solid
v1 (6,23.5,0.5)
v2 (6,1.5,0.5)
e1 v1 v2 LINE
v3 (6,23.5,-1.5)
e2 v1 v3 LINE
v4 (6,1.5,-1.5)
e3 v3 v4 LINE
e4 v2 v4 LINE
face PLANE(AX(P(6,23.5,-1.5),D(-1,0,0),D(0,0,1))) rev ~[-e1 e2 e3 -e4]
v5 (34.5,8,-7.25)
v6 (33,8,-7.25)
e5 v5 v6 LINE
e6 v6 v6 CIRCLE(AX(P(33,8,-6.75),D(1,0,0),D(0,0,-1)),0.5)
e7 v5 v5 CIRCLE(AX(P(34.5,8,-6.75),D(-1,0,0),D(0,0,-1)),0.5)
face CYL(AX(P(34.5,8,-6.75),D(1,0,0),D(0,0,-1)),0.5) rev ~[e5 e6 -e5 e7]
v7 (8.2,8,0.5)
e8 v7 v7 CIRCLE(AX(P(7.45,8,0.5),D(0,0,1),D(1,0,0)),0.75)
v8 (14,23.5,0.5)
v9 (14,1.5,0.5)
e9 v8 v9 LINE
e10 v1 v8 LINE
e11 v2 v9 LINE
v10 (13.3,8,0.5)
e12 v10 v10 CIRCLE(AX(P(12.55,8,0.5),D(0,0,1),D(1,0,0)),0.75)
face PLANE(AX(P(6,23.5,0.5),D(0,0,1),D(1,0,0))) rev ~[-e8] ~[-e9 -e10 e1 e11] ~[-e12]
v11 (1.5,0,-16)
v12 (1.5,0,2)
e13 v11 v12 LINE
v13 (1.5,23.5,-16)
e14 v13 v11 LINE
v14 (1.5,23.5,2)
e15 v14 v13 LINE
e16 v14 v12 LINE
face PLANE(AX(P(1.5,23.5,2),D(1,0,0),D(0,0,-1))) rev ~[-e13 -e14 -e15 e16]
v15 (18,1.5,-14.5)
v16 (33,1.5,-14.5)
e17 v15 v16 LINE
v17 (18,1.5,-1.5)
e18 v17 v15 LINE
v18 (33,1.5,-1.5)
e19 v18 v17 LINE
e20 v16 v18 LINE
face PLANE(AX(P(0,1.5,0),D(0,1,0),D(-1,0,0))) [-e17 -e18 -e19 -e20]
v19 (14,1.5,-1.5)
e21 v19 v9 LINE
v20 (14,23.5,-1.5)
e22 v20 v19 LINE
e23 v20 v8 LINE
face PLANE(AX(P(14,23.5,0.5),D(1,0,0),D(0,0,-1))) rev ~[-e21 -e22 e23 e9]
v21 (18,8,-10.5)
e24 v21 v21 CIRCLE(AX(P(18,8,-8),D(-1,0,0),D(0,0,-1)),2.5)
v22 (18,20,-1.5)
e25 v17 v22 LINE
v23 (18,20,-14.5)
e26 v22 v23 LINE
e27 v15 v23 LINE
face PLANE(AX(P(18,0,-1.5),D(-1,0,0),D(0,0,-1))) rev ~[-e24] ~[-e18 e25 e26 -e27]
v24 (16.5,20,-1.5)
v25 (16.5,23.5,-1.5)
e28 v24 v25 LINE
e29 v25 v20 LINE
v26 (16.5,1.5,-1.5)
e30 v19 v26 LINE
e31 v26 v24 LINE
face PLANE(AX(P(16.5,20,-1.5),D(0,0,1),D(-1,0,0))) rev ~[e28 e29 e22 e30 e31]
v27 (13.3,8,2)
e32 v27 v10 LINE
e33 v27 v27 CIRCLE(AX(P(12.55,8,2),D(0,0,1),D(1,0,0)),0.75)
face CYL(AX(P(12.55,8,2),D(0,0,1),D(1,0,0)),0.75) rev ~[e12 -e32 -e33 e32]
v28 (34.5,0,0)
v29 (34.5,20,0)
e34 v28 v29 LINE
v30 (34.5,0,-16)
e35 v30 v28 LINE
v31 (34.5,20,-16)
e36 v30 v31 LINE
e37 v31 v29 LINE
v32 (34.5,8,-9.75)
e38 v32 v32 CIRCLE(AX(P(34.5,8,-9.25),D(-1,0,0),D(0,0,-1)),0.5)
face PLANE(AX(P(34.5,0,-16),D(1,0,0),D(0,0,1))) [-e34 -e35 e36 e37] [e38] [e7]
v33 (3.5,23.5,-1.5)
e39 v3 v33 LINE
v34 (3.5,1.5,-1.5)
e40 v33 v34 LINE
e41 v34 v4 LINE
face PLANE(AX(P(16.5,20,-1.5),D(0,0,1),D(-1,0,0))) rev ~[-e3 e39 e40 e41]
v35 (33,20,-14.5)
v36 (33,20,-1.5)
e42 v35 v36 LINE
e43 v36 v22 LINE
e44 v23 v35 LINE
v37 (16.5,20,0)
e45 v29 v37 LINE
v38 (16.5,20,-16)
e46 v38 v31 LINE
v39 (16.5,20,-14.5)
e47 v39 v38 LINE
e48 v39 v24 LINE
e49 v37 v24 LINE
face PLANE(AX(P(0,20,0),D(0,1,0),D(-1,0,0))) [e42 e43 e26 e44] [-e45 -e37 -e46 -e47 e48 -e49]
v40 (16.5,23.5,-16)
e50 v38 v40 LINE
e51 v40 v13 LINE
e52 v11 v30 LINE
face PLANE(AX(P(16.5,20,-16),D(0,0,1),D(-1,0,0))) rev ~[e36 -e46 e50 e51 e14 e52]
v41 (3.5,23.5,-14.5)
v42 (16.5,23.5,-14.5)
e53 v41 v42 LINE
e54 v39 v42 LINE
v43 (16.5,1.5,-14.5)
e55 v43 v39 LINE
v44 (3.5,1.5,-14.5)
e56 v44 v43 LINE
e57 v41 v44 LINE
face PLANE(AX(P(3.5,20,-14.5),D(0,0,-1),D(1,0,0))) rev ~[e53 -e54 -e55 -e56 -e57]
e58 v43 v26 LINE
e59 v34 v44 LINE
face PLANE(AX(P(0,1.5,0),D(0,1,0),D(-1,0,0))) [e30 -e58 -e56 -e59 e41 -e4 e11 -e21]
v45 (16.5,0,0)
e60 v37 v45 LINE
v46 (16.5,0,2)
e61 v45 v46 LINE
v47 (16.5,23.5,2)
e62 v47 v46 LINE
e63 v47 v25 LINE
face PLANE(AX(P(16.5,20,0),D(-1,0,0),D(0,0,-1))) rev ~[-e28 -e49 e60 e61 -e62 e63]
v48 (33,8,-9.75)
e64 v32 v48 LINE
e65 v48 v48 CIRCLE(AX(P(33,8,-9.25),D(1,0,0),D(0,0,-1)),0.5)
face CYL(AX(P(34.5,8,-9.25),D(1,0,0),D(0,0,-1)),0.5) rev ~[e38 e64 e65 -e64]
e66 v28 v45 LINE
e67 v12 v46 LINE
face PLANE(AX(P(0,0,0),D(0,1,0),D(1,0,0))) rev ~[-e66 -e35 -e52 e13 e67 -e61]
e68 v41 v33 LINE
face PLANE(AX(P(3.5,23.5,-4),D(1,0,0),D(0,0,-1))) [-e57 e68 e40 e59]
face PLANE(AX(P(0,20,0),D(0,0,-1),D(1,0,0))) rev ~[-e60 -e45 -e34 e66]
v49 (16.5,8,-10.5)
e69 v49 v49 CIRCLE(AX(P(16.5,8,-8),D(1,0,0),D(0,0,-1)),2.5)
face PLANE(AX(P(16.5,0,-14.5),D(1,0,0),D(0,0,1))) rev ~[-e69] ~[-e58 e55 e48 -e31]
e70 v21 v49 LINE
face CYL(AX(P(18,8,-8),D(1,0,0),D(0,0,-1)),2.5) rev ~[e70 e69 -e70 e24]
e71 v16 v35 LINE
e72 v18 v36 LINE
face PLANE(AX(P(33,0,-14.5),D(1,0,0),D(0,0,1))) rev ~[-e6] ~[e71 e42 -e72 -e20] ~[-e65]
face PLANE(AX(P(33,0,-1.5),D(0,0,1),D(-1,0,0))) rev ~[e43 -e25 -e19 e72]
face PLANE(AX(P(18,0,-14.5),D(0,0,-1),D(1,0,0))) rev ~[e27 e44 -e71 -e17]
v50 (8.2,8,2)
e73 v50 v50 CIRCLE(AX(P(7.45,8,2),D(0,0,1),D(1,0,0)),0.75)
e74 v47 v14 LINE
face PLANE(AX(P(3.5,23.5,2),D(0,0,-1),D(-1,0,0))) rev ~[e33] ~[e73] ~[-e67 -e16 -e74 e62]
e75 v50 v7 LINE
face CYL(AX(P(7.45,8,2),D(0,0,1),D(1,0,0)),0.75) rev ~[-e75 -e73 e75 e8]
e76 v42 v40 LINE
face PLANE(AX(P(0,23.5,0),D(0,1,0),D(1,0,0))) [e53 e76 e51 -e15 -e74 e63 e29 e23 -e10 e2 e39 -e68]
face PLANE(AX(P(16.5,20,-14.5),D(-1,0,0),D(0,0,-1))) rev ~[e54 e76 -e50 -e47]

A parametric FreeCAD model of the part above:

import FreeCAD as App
import Part
import Sketcher
from FreeCAD import Vector
Q = App.Units.Quantity

doc = App.newDocument("Part")
body = doc.addObject("PartDesign::Body", "Body")
body.AllowCompound = True

# Sketch on XZ plane
sketch1 = body.newObject("Sketcher::SketchObject", "Sketch")
sketch1.AttachmentSupport = (doc.getObject("XZ_Plane"), [""])
sketch1.MapMode = "FlatFace"
sketch1.addGeometry([
    Part.LineSegment(Vector(16.5, -14.5, 0), Vector(3.5, -14.5, 0)),  # 0
    Part.LineSegment(Vector(3.5, -14.5, 0), Vector(3.5, -12, 0)),  # 1
    Part.LineSegment(Vector(3.5, -12, 0), Vector(1.5, -12, 0)),  # 2
    Part.LineSegment(Vector(1.5, -12, 0), Vector(1.5, -4, 0)),  # 3
    Part.LineSegment(Vector(1.5, -4, 0), Vector(3.5, -4, 0)),  # 4
    Part.LineSegment(Vector(3.5, -4, 0), Vector(3.5, -1.5, 0)),  # 5
    Part.LineSegment(Vector(3.5, -1.5, 0), Vector(16.5, -1.5, 0)),  # 6
    Part.LineSegment(Vector(16.5, -1.5, 0), Vector(16.5, -14.5, 0)),  # 7
    Part.LineSegment(Vector(33, -14.5, 0), Vector(18, -14.5, 0)),  # 8
    Part.LineSegment(Vector(18, -14.5, 0), Vector(18, -1.5, 0)),  # 9
    Part.LineSegment(Vector(18, -1.5, 0), Vector(33, -1.5, 0)),  # 10
    Part.LineSegment(Vector(33, -1.5, 0), Vector(33, -14.5, 0)),  # 11
], False)
sketch1.addConstraint([
    Sketcher.Constraint("Coincident", 0, 2, 1, 1),
    Sketcher.Constraint("Coincident", 1, 2, 2, 1),
    Sketcher.Constraint("Coincident", 2, 2, 3, 1),
    Sketcher.Constraint("Coincident", 3, 2, 4, 1),
    Sketcher.Constraint("Coincident", 4, 2, 5, 1),
    Sketcher.Constraint("Coincident", 5, 2, 6, 1),
    Sketcher.Constraint("Coincident", 6, 2, 7, 1),
    Sketcher.Constraint("Coincident", 7, 2, 0, 1),
    Sketcher.Constraint("Coincident", 8, 2, 9, 1),
    Sketcher.Constraint("Coincident", 9, 2, 10, 1),
    Sketcher.Constraint("Coincident", 10, 2, 11, 1),
    Sketcher.Constraint("Coincident", 11, 2, 8, 1),
    Sketcher.Constraint("Horizontal", 0),
    Sketcher.Constraint("Vertical", 1),
    Sketcher.Constraint("Horizontal", 2),
    Sketcher.Constraint("Vertical", 3),
    Sketcher.Constraint("Horizontal", 4),
    Sketcher.Constraint("Vertical", 5),
    Sketcher.Constraint("Horizontal", 6),
    Sketcher.Constraint("Vertical", 7),
    Sketcher.Constraint("Horizontal", 8),
    Sketcher.Constraint("Vertical", 9),
    Sketcher.Constraint("Horizontal", 10),
    Sketcher.Constraint("Vertical", 11),
    Sketcher.Constraint("Horizontal", 7, 2, 8, 2),
    Sketcher.Constraint("Horizontal", 6, 2, 9, 2),
    Sketcher.Constraint("Vertical", 1, 2, 4, 2),
    Sketcher.Constraint("Equal", 1, 5),
    Sketcher.Constraint("Equal", 6, 7),
    Sketcher.Constraint("DistanceX", 0, 2, 0, 1, Q("13 mm")),
    Sketcher.Constraint("DistanceX", 2, 2, 2, 1, Q("2 mm")),
    Sketcher.Constraint("DistanceX", 8, 2, 8, 1, Q("15 mm")),
    Sketcher.Constraint("DistanceY", 3, 1, 3, 2, Q("8 mm")),
    Sketcher.Constraint("DistanceX", -1, 1, 2, 2, Q("1.5 mm")),
    Sketcher.Constraint("DistanceY", 5, 2, -1, 1, Q("1.5 mm")),
    Sketcher.Constraint("DistanceX", 7, 2, 8, 2, Q("1.5 mm")),
])
pad1 = body.newObject("PartDesign::Pad", "Pad")
pad1.Profile = sketch1
pad1.Length = 1.5
pad1.Reversed = True

# Sketch on XZ plane
sketch2 = body.newObject("Sketcher::SketchObject", "Sketch001")
sketch2.AttachmentSupport = (doc.getObject("XZ_Plane"), [""])
sketch2.MapMode = "FlatFace"
sketch2.addGeometry([
    Part.LineSegment(Vector(0, -16, 0), Vector(0, 0, 0)),  # 0
    Part.LineSegment(Vector(0, 0, 0), Vector(34.5, 0, 0)),  # 1
    Part.LineSegment(Vector(34.5, 0, 0), Vector(34.5, -16, 0)),  # 2
    Part.LineSegment(Vector(34.5, -16, 0), Vector(0, -16, 0)),  # 3
    Part.LineSegment(Vector(18, -1.5, 0), Vector(18, -14.5, 0)),  # 4
    Part.LineSegment(Vector(18, -14.5, 0), Vector(33, -14.5, 0)),  # 5
    Part.LineSegment(Vector(33, -14.5, 0), Vector(33, -1.5, 0)),  # 6
    Part.LineSegment(Vector(33, -1.5, 0), Vector(18, -1.5, 0)),  # 7
    Part.LineSegment(Vector(3.5, -12, 0), Vector(3.5, -14.5, 0)),  # 8
    Part.LineSegment(Vector(3.5, -14.5, 0), Vector(16.5, -14.5, 0)),  # 9
    Part.LineSegment(Vector(16.5, -14.5, 0), Vector(16.5, -1.5, 0)),  # 10
    Part.LineSegment(Vector(16.5, -1.5, 0), Vector(3.5, -1.5, 0)),  # 11
    Part.LineSegment(Vector(3.5, -1.5, 0), Vector(3.5, -4, 0)),  # 12
    Part.LineSegment(Vector(3.5, -4, 0), Vector(1.5, -4, 0)),  # 13
    Part.LineSegment(Vector(1.5, -4, 0), Vector(1.5, -12, 0)),  # 14
    Part.LineSegment(Vector(1.5, -12, 0), Vector(3.5, -12, 0)),  # 15
], False)
sketch2.addConstraint([
    Sketcher.Constraint("Coincident", 0, 2, 1, 1),
    Sketcher.Constraint("Coincident", 1, 2, 2, 1),
    Sketcher.Constraint("Coincident", 2, 2, 3, 1),
    Sketcher.Constraint("Coincident", 3, 2, 0, 1),
    Sketcher.Constraint("Coincident", 4, 2, 5, 1),
    Sketcher.Constraint("Coincident", 5, 2, 6, 1),
    Sketcher.Constraint("Coincident", 6, 2, 7, 1),
    Sketcher.Constraint("Coincident", 7, 2, 4, 1),
    Sketcher.Constraint("Coincident", 8, 2, 9, 1),
    Sketcher.Constraint("Coincident", 9, 2, 10, 1),
    Sketcher.Constraint("Coincident", 10, 2, 11, 1),
    Sketcher.Constraint("Coincident", 11, 2, 12, 1),
    Sketcher.Constraint("Coincident", 12, 2, 13, 1),
    Sketcher.Constraint("Coincident", 13, 2, 14, 1),
    Sketcher.Constraint("Coincident", 14, 2, 15, 1),
    Sketcher.Constraint("Coincident", 15, 2, 8, 1),
    Sketcher.Constraint("Vertical", 0),
    Sketcher.Constraint("Horizontal", 1),
    Sketcher.Constraint("Vertical", 2),
    Sketcher.Constraint("Horizontal", 3),
    Sketcher.Constraint("Vertical", 4),
    Sketcher.Constraint("Horizontal", 5),
    Sketcher.Constraint("Vertical", 6),
    Sketcher.Constraint("Horizontal", 7),
    Sketcher.Constraint("Vertical", 8),
    Sketcher.Constraint("Horizontal", 9),
    Sketcher.Constraint("Vertical", 10),
    Sketcher.Constraint("Horizontal", 11),
    Sketcher.Constraint("Vertical", 12),
    Sketcher.Constraint("Horizontal", 13),
    Sketcher.Constraint("Vertical", 14),
    Sketcher.Constraint("Horizontal", 15),
    Sketcher.Constraint("Coincident", 0, 2, -1, 1),
    Sketcher.Constraint("Horizontal", 5, 2, 8, 2),
    Sketcher.Constraint("Horizontal", 7, 2, 10, 2),
    Sketcher.Constraint("Vertical", 8, 2, 11, 2),
    Sketcher.Constraint("Equal", 11, 4),
    Sketcher.Constraint("Equal", 8, 12),
    Sketcher.Constraint("DistanceX", 5, 1, 5, 2, Q("15 mm")),
    Sketcher.Constraint("DistanceX", 9, 1, 9, 2, Q("13 mm")),
    Sketcher.Constraint("DistanceX", 13, 2, 13, 1, Q("2 mm")),
    Sketcher.Constraint("DistanceY", 14, 2, 14, 1, Q("8 mm")),
    Sketcher.Constraint("DistanceY", 6, 2, -1, 1, Q("1.5 mm")),
    Sketcher.Constraint("DistanceX", -1, 1, 13, 2, Q("1.5 mm")),
    Sketcher.Constraint("DistanceY", 2, 2, 4, 2, Q("1.5 mm")),
    Sketcher.Constraint("DistanceX", 5, 2, 2, 2, Q("1.5 mm")),
    Sketcher.Constraint("DistanceX", 9, 2, 4, 2, Q("1.5 mm")),
])
pad2 = body.newObject("PartDesign::Pad", "Pad001")
pad2.Profile = sketch2
pad2.Length = 20
pad2.Reversed = True

# Sketch on YZ plane
sketch3 = body.newObject("Sketcher::SketchObject", "Sketch002")
sketch3.AttachmentSupport = (doc.getObject("YZ_Plane"), [""])
sketch3.MapMode = "FlatFace"
sketch3.addGeometry([
    Part.Circle(Vector(8, -10.55, 0), Vector(0, 0, 1), 0.5),
    Part.Circle(Vector(8, -5.45, 0), Vector(0, 0, 1), 0.5),
], False)
sketch3.addConstraint([
    Sketcher.Constraint("Equal", 0, 1),
    Sketcher.Constraint("Vertical", 0, 3, 1, 3),
    Sketcher.Constraint("Diameter", 0, Q("1 mm")),
    Sketcher.Constraint("DistanceX", -1, 1, 0, 3, Q("8 mm")),
    Sketcher.Constraint("DistanceY", 0, 3, 1, 3, Q("5.1 mm")),
    Sketcher.Constraint("DistanceY", 0, 3, -1, 1, Q("10.55 mm")),
])
pocket1 = body.newObject("PartDesign::Pocket", "Pocket")
pocket1.Profile = sketch3
pocket1.Length = 10
pocket1.Reversed = True

# Sketch on YZ plane
sketch4 = body.newObject("Sketcher::SketchObject", "Sketch003")
sketch4.AttachmentSupport = (doc.getObject("YZ_Plane"), [""])
sketch4.MapMode = "FlatFace"
sketch4.AttachmentOffset = App.Placement(Vector(0, 0, 34.5), App.Rotation())
sketch4.addGeometry([
    Part.Circle(Vector(8, -6.75, 0), Vector(0, 0, 1), 0.5),
    Part.Circle(Vector(8, -9.25, 0), Vector(0, 0, 1), 0.5),
], False)
sketch4.addConstraint([
    Sketcher.Constraint("Equal", 0, 1),
    Sketcher.Constraint("Vertical", 0, 3, 1, 3),
    Sketcher.Constraint("Diameter", 0, Q("1 mm")),
    Sketcher.Constraint("DistanceX", -1, 1, 0, 3, Q("8 mm")),
    Sketcher.Constraint("DistanceY", 1, 3, 0, 3, Q("2.5 mm")),
    Sketcher.Constraint("DistanceY", 0, 3, -1, 1, Q("6.75 mm")),
])
pocket2 = body.newObject("PartDesign::Pocket", "Pocket001")
pocket2.Profile = sketch4
pocket2.Length = 10

# Sketch on YZ plane
sketch5 = body.newObject("Sketcher::SketchObject", "Sketch004")
sketch5.AttachmentSupport = (doc.getObject("YZ_Plane"), [""])
sketch5.MapMode = "FlatFace"
sketch5.AttachmentOffset = App.Placement(Vector(0, 0, 18), App.Rotation())
sketch5.addGeometry(Part.Circle(Vector(8, -8, 0), Vector(0, 0, 1), 2.5), False)
sketch5.addConstraint([
    Sketcher.Constraint("Diameter", 0, Q("5 mm")),
    Sketcher.Constraint("DistanceX", -1, 1, 0, 3, Q("8 mm")),
    Sketcher.Constraint("DistanceY", 0, 3, -1, 1, Q("8 mm")),
])
pocket3 = body.newObject("PartDesign::Pocket", "Pocket002")
pocket3.Profile = sketch5
pocket3.Length = 10

# Sketch on XZ plane
sketch6 = body.newObject("Sketcher::SketchObject", "Sketch005")
sketch6.AttachmentSupport = (doc.getObject("XZ_Plane"), [""])
sketch6.MapMode = "FlatFace"
sketch6.AttachmentOffset = App.Placement(Vector(0, 0, -20), App.Rotation())
sketch6.addGeometry([
    Part.LineSegment(Vector(0, -16, 0), Vector(0, 0, 0)),  # 0
    Part.LineSegment(Vector(0, 0, 0), Vector(16.5, 0, 0)),  # 1
    Part.LineSegment(Vector(16.5, 0, 0), Vector(16.5, -1.5, 0)),  # 2
    Part.LineSegment(Vector(16.5, -1.5, 0), Vector(3.5, -1.5, 0)),  # 3
    Part.LineSegment(Vector(3.5, -1.5, 0), Vector(3.5, -4, 0)),  # 4
    Part.LineSegment(Vector(3.5, -4, 0), Vector(1.5, -4, 0)),  # 5
    Part.LineSegment(Vector(1.5, -4, 0), Vector(1.5, -12, 0)),  # 6
    Part.LineSegment(Vector(1.5, -12, 0), Vector(3.5, -12, 0)),  # 7
    Part.LineSegment(Vector(3.5, -12, 0), Vector(3.5, -14.5, 0)),  # 8
    Part.LineSegment(Vector(3.5, -14.5, 0), Vector(16.5, -14.5, 0)),  # 9
    Part.LineSegment(Vector(16.5, -14.5, 0), Vector(16.5, -16, 0)),  # 10
    Part.LineSegment(Vector(16.5, -16, 0), Vector(0, -16, 0)),  # 11
], False)
sketch6.addConstraint([
    Sketcher.Constraint("Coincident", 0, 2, 1, 1),
    Sketcher.Constraint("Coincident", 1, 2, 2, 1),
    Sketcher.Constraint("Coincident", 2, 2, 3, 1),
    Sketcher.Constraint("Coincident", 3, 2, 4, 1),
    Sketcher.Constraint("Coincident", 4, 2, 5, 1),
    Sketcher.Constraint("Coincident", 5, 2, 6, 1),
    Sketcher.Constraint("Coincident", 6, 2, 7, 1),
    Sketcher.Constraint("Coincident", 7, 2, 8, 1),
    Sketcher.Constraint("Coincident", 8, 2, 9, 1),
    Sketcher.Constraint("Coincident", 9, 2, 10, 1),
    Sketcher.Constraint("Coincident", 10, 2, 11, 1),
    Sketcher.Constraint("Coincident", 11, 2, 0, 1),
    Sketcher.Constraint("Vertical", 0),
    Sketcher.Constraint("Horizontal", 1),
    Sketcher.Constraint("Vertical", 2),
    Sketcher.Constraint("Horizontal", 3),
    Sketcher.Constraint("Vertical", 4),
    Sketcher.Constraint("Horizontal", 5),
    Sketcher.Constraint("Vertical", 6),
    Sketcher.Constraint("Horizontal", 7),
    Sketcher.Constraint("Vertical", 8),
    Sketcher.Constraint("Horizontal", 9),
    Sketcher.Constraint("Vertical", 10),
    Sketcher.Constraint("Horizontal", 11),
    Sketcher.Constraint("Coincident", 0, 2, -1, 1),
    Sketcher.Constraint("Vertical", 4, 2, 7, 2),
    Sketcher.Constraint("Vertical", 2, 2, 9, 2),
    Sketcher.Constraint("Equal", 4, 8),
    Sketcher.Constraint("Equal", 2, 10),
    Sketcher.Constraint("DistanceX", 1, 1, 1, 2, Q("16.5 mm")),
    Sketcher.Constraint("DistanceX", 3, 2, 3, 1, Q("13 mm")),
    Sketcher.Constraint("DistanceX", 5, 2, 5, 1, Q("2 mm")),
    Sketcher.Constraint("DistanceY", 0, 1, 0, 2, Q("16 mm")),
    Sketcher.Constraint("DistanceY", 6, 2, 6, 1, Q("8 mm")),
    Sketcher.Constraint("DistanceY", 2, 2, 2, 1, Q("1.5 mm")),
])
pad3 = body.newObject("PartDesign::Pad", "Pad002")
pad3.Profile = sketch6
pad3.Length = 3.5
pad3.Reversed = True

# Sketch on XZ plane
sketch7 = body.newObject("Sketcher::SketchObject", "Sketch006")
sketch7.AttachmentSupport = (doc.getObject("XZ_Plane"), [""])
sketch7.MapMode = "FlatFace"
sketch7.AttachmentOffset = App.Placement(Vector(0, 0, -23.5), App.Rotation())
sketch7.addGeometry([
    Part.LineSegment(Vector(6, -1.5, 0), Vector(3.5, -1.5, 0)),  # 0
    Part.LineSegment(Vector(3.5, -1.5, 0), Vector(3.5, 2, 0)),  # 1
    Part.LineSegment(Vector(3.5, 2, 0), Vector(16.5, 2, 0)),  # 2
    Part.LineSegment(Vector(16.5, 2, 0), Vector(16.5, -1.5, 0)),  # 3
    Part.LineSegment(Vector(16.5, -1.5, 0), Vector(14, -1.5, 0)),  # 4
    Part.LineSegment(Vector(14, -1.5, 0), Vector(14, 0.5, 0)),  # 5
    Part.LineSegment(Vector(14, 0.5, 0), Vector(6, 0.5, 0)),  # 6
    Part.LineSegment(Vector(6, 0.5, 0), Vector(6, -1.5, 0)),  # 7
], False)
sketch7.addConstraint([
    Sketcher.Constraint("Coincident", 0, 2, 1, 1),
    Sketcher.Constraint("Coincident", 1, 2, 2, 1),
    Sketcher.Constraint("Coincident", 2, 2, 3, 1),
    Sketcher.Constraint("Coincident", 3, 2, 4, 1),
    Sketcher.Constraint("Coincident", 4, 2, 5, 1),
    Sketcher.Constraint("Coincident", 5, 2, 6, 1),
    Sketcher.Constraint("Coincident", 6, 2, 7, 1),
    Sketcher.Constraint("Coincident", 7, 2, 0, 1),
    Sketcher.Constraint("Horizontal", 0),
    Sketcher.Constraint("Vertical", 1),
    Sketcher.Constraint("Horizontal", 2),
    Sketcher.Constraint("Vertical", 3),
    Sketcher.Constraint("Horizontal", 4),
    Sketcher.Constraint("Vertical", 5),
    Sketcher.Constraint("Horizontal", 6),
    Sketcher.Constraint("Vertical", 7),
    Sketcher.Constraint("Horizontal", 0, 2, 3, 2),
    Sketcher.Constraint("Equal", 0, 4),
    Sketcher.Constraint("DistanceX", 6, 2, 6, 1, Q("8 mm")),
    Sketcher.Constraint("DistanceY", 5, 1, 5, 2, Q("2 mm")),
    Sketcher.Constraint("DistanceX", 0, 2, 0, 1, Q("2.5 mm")),
    Sketcher.Constraint("DistanceY", 1, 1, 1, 2, Q("3.5 mm")),
    Sketcher.Constraint("DistanceY", -1, 1, 1, 2, Q("2 mm")),
    Sketcher.Constraint("DistanceX", -1, 1, 0, 2, Q("3.5 mm")),
])
pad4 = body.newObject("PartDesign::Pad", "Pad003")
pad4.Profile = sketch7
pad4.Length = 23.5

# Sketch on XZ plane
sketch8 = body.newObject("Sketcher::SketchObject", "Sketch007")
sketch8.AttachmentSupport = (doc.getObject("XZ_Plane"), [""])
sketch8.MapMode = "FlatFace"
sketch8.AttachmentOffset = App.Placement(Vector(0, 0, -23.5), App.Rotation())
sketch8.addGeometry([
    Part.LineSegment(Vector(14, -1.5, 0), Vector(6, -1.5, 0)),
    Part.LineSegment(Vector(6, -1.5, 0), Vector(6, 0, 0)),
    Part.LineSegment(Vector(6, 0, 0), Vector(14, 0, 0)),
    Part.LineSegment(Vector(14, 0, 0), Vector(14, -1.5, 0)),
], False)
sketch8.addConstraint([
    Sketcher.Constraint("Coincident", 0, 2, 1, 1),
    Sketcher.Constraint("Coincident", 1, 2, 2, 1),
    Sketcher.Constraint("Coincident", 2, 2, 3, 1),
    Sketcher.Constraint("Coincident", 3, 2, 0, 1),
    Sketcher.Constraint("Horizontal", 0),
    Sketcher.Constraint("Vertical", 1),
    Sketcher.Constraint("Horizontal", 2),
    Sketcher.Constraint("Vertical", 3),
    Sketcher.Constraint("PointOnObject", 1, 2, -1),
    Sketcher.Constraint("DistanceX", 0, 2, 0, 1, Q("8 mm")),
    Sketcher.Constraint("DistanceY", 1, 1, 1, 2, Q("1.5 mm")),
    Sketcher.Constraint("DistanceX", -1, 1, 0, 2, Q("6 mm")),
])
pocket4 = body.newObject("PartDesign::Pocket", "Pocket003")
pocket4.Profile = sketch8
pocket4.Length = 22
pocket4.Reversed = True

# Sketch on XZ plane
sketch9 = body.newObject("Sketcher::SketchObject", "Sketch008")
sketch9.AttachmentSupport = (doc.getObject("XZ_Plane"), [""])
sketch9.MapMode = "FlatFace"
sketch9.AttachmentOffset = App.Placement(Vector(0, 0, -23.5), App.Rotation())
sketch9.addGeometry([
    Part.LineSegment(Vector(1.5, 0, 0), Vector(1.5, -16, 0)),
    Part.LineSegment(Vector(1.5, -16, 0), Vector(0, -16, 0)),
    Part.LineSegment(Vector(0, -16, 0), Vector(0, 0, 0)),
    Part.LineSegment(Vector(0, 0, 0), Vector(1.5, 0, 0)),
], False)
sketch9.addConstraint([
    Sketcher.Constraint("Coincident", 0, 2, 1, 1),
    Sketcher.Constraint("Coincident", 1, 2, 2, 1),
    Sketcher.Constraint("Coincident", 2, 2, 3, 1),
    Sketcher.Constraint("Coincident", 3, 2, 0, 1),
    Sketcher.Constraint("Vertical", 0),
    Sketcher.Constraint("Horizontal", 1),
    Sketcher.Constraint("Vertical", 2),
    Sketcher.Constraint("Horizontal", 3),
    Sketcher.Constraint("Coincident", 2, 2, -1, 1),
    Sketcher.Constraint("DistanceX", 1, 2, 1, 1, Q("1.5 mm")),
    Sketcher.Constraint("DistanceY", 0, 2, 0, 1, Q("16 mm")),
])
pocket5 = body.newObject("PartDesign::Pocket", "Pocket004")
pocket5.Profile = sketch9
pocket5.Type = "ThroughAll"
pocket5.Reversed = True

# Sketch on XZ plane
sketch10 = body.newObject("Sketcher::SketchObject", "Sketch009")
sketch10.AttachmentSupport = (doc.getObject("XZ_Plane"), [""])
sketch10.MapMode = "FlatFace"
sketch10.AttachmentOffset = App.Placement(Vector(0, 0, -23.5), App.Rotation())
sketch10.addGeometry([
    Part.LineSegment(Vector(3.5, -12, 0), Vector(1.5, -12, 0)),
    Part.LineSegment(Vector(1.5, -12, 0), Vector(1.5, -4, 0)),
    Part.LineSegment(Vector(1.5, -4, 0), Vector(3.5, -4, 0)),
    Part.LineSegment(Vector(3.5, -4, 0), Vector(3.5, -12, 0)),
], False)
sketch10.addConstraint([
    Sketcher.Constraint("Coincident", 0, 2, 1, 1),
    Sketcher.Constraint("Coincident", 1, 2, 2, 1),
    Sketcher.Constraint("Coincident", 2, 2, 3, 1),
    Sketcher.Constraint("Coincident", 3, 2, 0, 1),
    Sketcher.Constraint("Horizontal", 0),
    Sketcher.Constraint("Vertical", 1),
    Sketcher.Constraint("Horizontal", 2),
    Sketcher.Constraint("Vertical", 3),
    Sketcher.Constraint("DistanceX", 0, 2, 0, 1, Q("2 mm")),
    Sketcher.Constraint("DistanceY", 1, 1, 1, 2, Q("8 mm")),
    Sketcher.Constraint("DistanceY", 0, 2, -1, 1, Q("12 mm")),
    Sketcher.Constraint("DistanceX", -1, 1, 0, 2, Q("1.5 mm")),
])
pad5 = body.newObject("PartDesign::Pad", "Pad004")
pad5.Profile = sketch10
pad5.Length = 22

# Sketch on XZ plane
sketch11 = body.newObject("Sketcher::SketchObject", "Sketch010")
sketch11.AttachmentSupport = (doc.getObject("XZ_Plane"), [""])
sketch11.MapMode = "FlatFace"
sketch11.addGeometry([
    Part.LineSegment(Vector(6, 0.5, 0), Vector(6, 0, 0)),
    Part.LineSegment(Vector(6, 0, 0), Vector(14, 0, 0)),
    Part.LineSegment(Vector(14, 0, 0), Vector(14, 0.5, 0)),
    Part.LineSegment(Vector(14, 0.5, 0), Vector(6, 0.5, 0)),
], False)
sketch11.addConstraint([
    Sketcher.Constraint("Coincident", 0, 2, 1, 1),
    Sketcher.Constraint("Coincident", 1, 2, 2, 1),
    Sketcher.Constraint("Coincident", 2, 2, 3, 1),
    Sketcher.Constraint("Coincident", 3, 2, 0, 1),
    Sketcher.Constraint("Vertical", 0),
    Sketcher.Constraint("Horizontal", 1),
    Sketcher.Constraint("Vertical", 2),
    Sketcher.Constraint("Horizontal", 3),
    Sketcher.Constraint("PointOnObject", 0, 2, -1),
    Sketcher.Constraint("DistanceX", 1, 1, 1, 2, Q("8 mm")),
    Sketcher.Constraint("DistanceY", 0, 2, 0, 1, Q("0.5 mm")),
    Sketcher.Constraint("DistanceX", -1, 1, 0, 2, Q("6 mm")),
])
pad6 = body.newObject("PartDesign::Pad", "Pad005")
pad6.Profile = sketch11
pad6.Length = 1.5
pad6.Reversed = True

# Sketch on XZ plane
sketch12 = body.newObject("Sketcher::SketchObject", "Sketch011")
sketch12.AttachmentSupport = (doc.getObject("XZ_Plane"), [""])
sketch12.MapMode = "FlatFace"
sketch12.AttachmentOffset = App.Placement(Vector(0, 0, -23.5), App.Rotation())
sketch12.addGeometry([
    Part.LineSegment(Vector(1.5, 2, 0), Vector(3.5, 2, 0)),
    Part.LineSegment(Vector(3.5, 2, 0), Vector(3.5, 0, 0)),
    Part.LineSegment(Vector(3.5, 0, 0), Vector(1.5, 0, 0)),
    Part.LineSegment(Vector(1.5, 0, 0), Vector(1.5, 2, 0)),
], False)
sketch12.addConstraint([
    Sketcher.Constraint("Coincident", 0, 2, 1, 1),
    Sketcher.Constraint("Coincident", 1, 2, 2, 1),
    Sketcher.Constraint("Coincident", 2, 2, 3, 1),
    Sketcher.Constraint("Coincident", 3, 2, 0, 1),
    Sketcher.Constraint("Horizontal", 0),
    Sketcher.Constraint("Vertical", 1),
    Sketcher.Constraint("Horizontal", 2),
    Sketcher.Constraint("Vertical", 3),
    Sketcher.Constraint("PointOnObject", 1, 2, -1),
    Sketcher.Constraint("Equal", 2, 1),
    Sketcher.Constraint("DistanceX", 0, 1, 0, 2, Q("2 mm")),
    Sketcher.Constraint("DistanceX", -1, 1, 0, 2, Q("3.5 mm")),
])
pad7 = body.newObject("PartDesign::Pad", "Pad006")
pad7.Profile = sketch12
pad7.Length = 23.5

# Sketch on XY plane
sketch13 = body.newObject("Sketcher::SketchObject", "Sketch012")
sketch13.AttachmentSupport = (doc.getObject("XY_Plane"), [""])
sketch13.MapMode = "FlatFace"
sketch13.AttachmentOffset = App.Placement(Vector(0, 0, 2), App.Rotation())
sketch13.addGeometry([
    Part.Circle(Vector(12.55, 8, 0), Vector(0, 0, 1), 0.75),
    Part.Circle(Vector(7.45, 8, 0), Vector(0, 0, 1), 0.75),
], False)
sketch13.addConstraint([
    Sketcher.Constraint("Equal", 0, 1),
    Sketcher.Constraint("Horizontal", 0, 3, 1, 3),
    Sketcher.Constraint("Diameter", 0, Q("1.5 mm")),
    Sketcher.Constraint("DistanceY", -1, 1, 0, 3, Q("8 mm")),
    Sketcher.Constraint("DistanceX", 1, 3, 0, 3, Q("5.1 mm")),
    Sketcher.Constraint("DistanceX", -1, 1, 0, 3, Q("12.55 mm")),
])
pocket6 = body.newObject("PartDesign::Pocket", "Pocket005")
pocket6.Profile = sketch13
pocket6.Length = 10

doc.recompute()
